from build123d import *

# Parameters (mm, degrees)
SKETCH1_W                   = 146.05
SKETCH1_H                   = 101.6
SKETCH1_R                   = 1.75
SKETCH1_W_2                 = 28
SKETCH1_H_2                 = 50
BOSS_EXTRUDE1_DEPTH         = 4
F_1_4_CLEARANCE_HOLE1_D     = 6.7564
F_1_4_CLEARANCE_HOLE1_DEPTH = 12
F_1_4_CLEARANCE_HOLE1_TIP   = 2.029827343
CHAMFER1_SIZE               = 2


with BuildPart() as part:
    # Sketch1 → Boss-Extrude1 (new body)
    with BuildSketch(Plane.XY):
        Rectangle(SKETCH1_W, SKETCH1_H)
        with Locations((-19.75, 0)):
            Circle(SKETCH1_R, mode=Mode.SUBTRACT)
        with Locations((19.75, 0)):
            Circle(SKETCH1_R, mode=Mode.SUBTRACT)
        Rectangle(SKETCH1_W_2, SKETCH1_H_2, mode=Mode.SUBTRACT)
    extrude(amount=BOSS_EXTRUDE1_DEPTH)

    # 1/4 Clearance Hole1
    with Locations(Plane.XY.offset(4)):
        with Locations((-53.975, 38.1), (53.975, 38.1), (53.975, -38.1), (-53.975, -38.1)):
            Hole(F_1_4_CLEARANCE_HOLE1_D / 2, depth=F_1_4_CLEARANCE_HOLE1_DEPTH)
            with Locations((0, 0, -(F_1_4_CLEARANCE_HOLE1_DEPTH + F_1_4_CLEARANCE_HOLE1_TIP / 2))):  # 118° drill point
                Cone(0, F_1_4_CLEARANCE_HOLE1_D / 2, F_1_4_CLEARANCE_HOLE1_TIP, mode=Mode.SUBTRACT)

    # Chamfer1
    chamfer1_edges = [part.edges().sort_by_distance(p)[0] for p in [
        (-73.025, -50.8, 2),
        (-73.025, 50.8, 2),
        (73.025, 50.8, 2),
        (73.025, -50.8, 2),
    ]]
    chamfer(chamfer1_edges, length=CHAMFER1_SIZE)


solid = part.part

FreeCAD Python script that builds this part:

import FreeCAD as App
import Part
import Sketcher
from FreeCAD import Vector


def edges_at(feature, points):
    """Names of the edges that pass closest to the given points."""
    edges = feature.Shape.Edges
    near = lambda p: min(range(len(edges)), key=lambda i: edges[i].distToShape(Part.Vertex(*p))[0])
    return sorted({f"Edge{near(p) + 1}" for p in points})

doc = App.newDocument("Part")
body = doc.addObject("PartDesign::Body", "Body")

# Sketch on XY plane
sketch1 = body.newObject("Sketcher::SketchObject", "Sketch")
sketch1.AttachmentSupport = (doc.getObject("XY_Plane"), [""])
sketch1.MapMode = "FlatFace"
sketch1.addGeometry(Part.LineSegment(Vector(-73.025, 50.8, 0), Vector(-73.025, -50.8, 0)), False)
sketch1.addGeometry(Part.LineSegment(Vector(-73.025, -50.8, 0), Vector(73.025, -50.8, 0)), False)
sketch1.addGeometry(Part.LineSegment(Vector(73.025, -50.8, 0), Vector(73.025, 50.8, 0)), False)
sketch1.addGeometry(Part.LineSegment(Vector(73.025, 50.8, 0), Vector(-73.025, 50.8, 0)), False)
sketch1.addGeometry(Part.Circle(Vector(-19.75, 0, 0), Vector(0, 0, 1), 1.75), False)
sketch1.addGeometry(Part.LineSegment(Vector(14, -25, 0), Vector(-14, -25, 0)), False)
sketch1.addGeometry(Part.LineSegment(Vector(-14, -25, 0), Vector(-14, 25, 0)), False)
sketch1.addGeometry(Part.LineSegment(Vector(-14, 25, 0), Vector(14, 25, 0)), False)
sketch1.addGeometry(Part.LineSegment(Vector(14, 25, 0), Vector(14, -25, 0)), False)
sketch1.addGeometry(Part.Circle(Vector(19.75, 0, 0), Vector(0, 0, 1), 1.75), False)
sketch1.addConstraint(Sketcher.Constraint("Coincident", 0, 2, 1, 1))
sketch1.addConstraint(Sketcher.Constraint("Coincident", 1, 2, 2, 1))
sketch1.addConstraint(Sketcher.Constraint("Coincident", 2, 2, 3, 1))
sketch1.addConstraint(Sketcher.Constraint("Coincident", 3, 2, 0, 1))
sketch1.addConstraint(Sketcher.Constraint("Coincident", 5, 2, 6, 1))
sketch1.addConstraint(Sketcher.Constraint("Coincident", 6, 2, 7, 1))
sketch1.addConstraint(Sketcher.Constraint("Coincident", 7, 2, 8, 1))
sketch1.addConstraint(Sketcher.Constraint("Coincident", 8, 2, 5, 1))
sketch1.addConstraint(Sketcher.Constraint("Vertical", 0))
sketch1.addConstraint(Sketcher.Constraint("Horizontal", 1))
sketch1.addConstraint(Sketcher.Constraint("Vertical", 2))
sketch1.addConstraint(Sketcher.Constraint("Horizontal", 3))
sketch1.addConstraint(Sketcher.Constraint("Horizontal", 5))
sketch1.addConstraint(Sketcher.Constraint("Vertical", 6))
sketch1.addConstraint(Sketcher.Constraint("Horizontal", 7))
sketch1.addConstraint(Sketcher.Constraint("Vertical", 8))
sketch1.addConstraint(Sketcher.Constraint("Equal", 4, 9))
sketch1.addConstraint(Sketcher.Constraint("Symmetric", 4, 3, 9, 3, -1, 1))
sketch1.addConstraint(Sketcher.Constraint("Symmetric", 0, 2, 2, 2, -1, 1))
sketch1.addConstraint(Sketcher.Constraint("Symmetric", 5, 2, 7, 2, -1, 1))
sketch1.addConstraint(Sketcher.Constraint("PointOnObject", 4, 3, -1))
sketch1.addConstraint(Sketcher.Constraint("Diameter", 4, 3.5))
sketch1.addConstraint(Sketcher.Constraint("DistanceX", 5, 2, 5, 1, 28.0))
sketch1.addConstraint(Sketcher.Constraint("DistanceY", 6, 1, 6, 2, 50.0))
sketch1.addConstraint(Sketcher.Constraint("DistanceY", 0, 2, 0, 1, 101.6))
sketch1.addConstraint(Sketcher.Constraint("DistanceX", 1, 1, 1, 2, 146.05))
sketch1.addConstraint(Sketcher.Constraint("DistanceX", 4, 3, 9, 3, 39.5))
pad1 = body.newObject("PartDesign::Pad", "Pad")
pad1.Profile = sketch1
pad1.Length = 4

# Sketch on XY plane
sketch2 = body.newObject("Sketcher::SketchObject", "Sketch001")
sketch2.AttachmentSupport = (doc.getObject("XY_Plane"), [""])
sketch2.MapMode = "FlatFace"
sketch2.AttachmentOffset = App.Placement(Vector(0, 0, 4), App.Rotation())
sketch2.addGeometry(Part.Circle(Vector(-53.975, 38.1, 0), Vector(0, 0, 1), 3.3782), False)
sketch2.addGeometry(Part.Circle(Vector(53.975, 38.1, 0), Vector(0, 0, 1), 3.3782), False)
sketch2.addGeometry(Part.Circle(Vector(53.975, -38.1, 0), Vector(0, 0, 1), 3.3782), False)
sketch2.addGeometry(Part.Circle(Vector(-53.975, -38.1, 0), Vector(0, 0, 1), 3.3782), False)
sketch2.addConstraint(Sketcher.Constraint("Equal", 0, 1))
sketch2.addConstraint(Sketcher.Constraint("Equal", 1, 2))
sketch2.addConstraint(Sketcher.Constraint("Equal", 2, 3))
sketch2.addConstraint(Sketcher.Constraint("Symmetric", 0, 3, 2, 3, -1, 1))
sketch2.addConstraint(Sketcher.Constraint("Symmetric", 1, 3, 3, 3, -1, 1))
sketch2.addConstraint(Sketcher.Constraint("Symmetric", 0, 3, 1, 3, -2))
sketch2.addConstraint(Sketcher.Constraint("Diameter", 0, 6.7564))
sketch2.addConstraint(Sketcher.Constraint("DistanceY", -1, 1, 0, 3, 38.1))
sketch2.addConstraint(Sketcher.Constraint("DistanceX", 0, 3, 1, 3, 107.95))
doc.recompute()
hole = body.newObject("PartDesign::Hole", "Hole")
hole.Profile = sketch2
hole.ThreadType = "None"
hole.Diameter = 6.7564
hole.DepthType = "Dimension"
hole.Depth = 12
hole.DrillPoint = "Angled"
hole.DrillPointAngle = 118
doc.recompute()

chamfer = body.newObject("PartDesign::Chamfer", "Chamfer")
chamfer.Base = (hole, edges_at(hole, [
    (-73.025, -50.8, 2),
    (-73.025, 50.8, 2),
    (73.025, 50.8, 2),
    (73.025, -50.8, 2),
]))
chamfer.Size = 2

doc.recompute()
